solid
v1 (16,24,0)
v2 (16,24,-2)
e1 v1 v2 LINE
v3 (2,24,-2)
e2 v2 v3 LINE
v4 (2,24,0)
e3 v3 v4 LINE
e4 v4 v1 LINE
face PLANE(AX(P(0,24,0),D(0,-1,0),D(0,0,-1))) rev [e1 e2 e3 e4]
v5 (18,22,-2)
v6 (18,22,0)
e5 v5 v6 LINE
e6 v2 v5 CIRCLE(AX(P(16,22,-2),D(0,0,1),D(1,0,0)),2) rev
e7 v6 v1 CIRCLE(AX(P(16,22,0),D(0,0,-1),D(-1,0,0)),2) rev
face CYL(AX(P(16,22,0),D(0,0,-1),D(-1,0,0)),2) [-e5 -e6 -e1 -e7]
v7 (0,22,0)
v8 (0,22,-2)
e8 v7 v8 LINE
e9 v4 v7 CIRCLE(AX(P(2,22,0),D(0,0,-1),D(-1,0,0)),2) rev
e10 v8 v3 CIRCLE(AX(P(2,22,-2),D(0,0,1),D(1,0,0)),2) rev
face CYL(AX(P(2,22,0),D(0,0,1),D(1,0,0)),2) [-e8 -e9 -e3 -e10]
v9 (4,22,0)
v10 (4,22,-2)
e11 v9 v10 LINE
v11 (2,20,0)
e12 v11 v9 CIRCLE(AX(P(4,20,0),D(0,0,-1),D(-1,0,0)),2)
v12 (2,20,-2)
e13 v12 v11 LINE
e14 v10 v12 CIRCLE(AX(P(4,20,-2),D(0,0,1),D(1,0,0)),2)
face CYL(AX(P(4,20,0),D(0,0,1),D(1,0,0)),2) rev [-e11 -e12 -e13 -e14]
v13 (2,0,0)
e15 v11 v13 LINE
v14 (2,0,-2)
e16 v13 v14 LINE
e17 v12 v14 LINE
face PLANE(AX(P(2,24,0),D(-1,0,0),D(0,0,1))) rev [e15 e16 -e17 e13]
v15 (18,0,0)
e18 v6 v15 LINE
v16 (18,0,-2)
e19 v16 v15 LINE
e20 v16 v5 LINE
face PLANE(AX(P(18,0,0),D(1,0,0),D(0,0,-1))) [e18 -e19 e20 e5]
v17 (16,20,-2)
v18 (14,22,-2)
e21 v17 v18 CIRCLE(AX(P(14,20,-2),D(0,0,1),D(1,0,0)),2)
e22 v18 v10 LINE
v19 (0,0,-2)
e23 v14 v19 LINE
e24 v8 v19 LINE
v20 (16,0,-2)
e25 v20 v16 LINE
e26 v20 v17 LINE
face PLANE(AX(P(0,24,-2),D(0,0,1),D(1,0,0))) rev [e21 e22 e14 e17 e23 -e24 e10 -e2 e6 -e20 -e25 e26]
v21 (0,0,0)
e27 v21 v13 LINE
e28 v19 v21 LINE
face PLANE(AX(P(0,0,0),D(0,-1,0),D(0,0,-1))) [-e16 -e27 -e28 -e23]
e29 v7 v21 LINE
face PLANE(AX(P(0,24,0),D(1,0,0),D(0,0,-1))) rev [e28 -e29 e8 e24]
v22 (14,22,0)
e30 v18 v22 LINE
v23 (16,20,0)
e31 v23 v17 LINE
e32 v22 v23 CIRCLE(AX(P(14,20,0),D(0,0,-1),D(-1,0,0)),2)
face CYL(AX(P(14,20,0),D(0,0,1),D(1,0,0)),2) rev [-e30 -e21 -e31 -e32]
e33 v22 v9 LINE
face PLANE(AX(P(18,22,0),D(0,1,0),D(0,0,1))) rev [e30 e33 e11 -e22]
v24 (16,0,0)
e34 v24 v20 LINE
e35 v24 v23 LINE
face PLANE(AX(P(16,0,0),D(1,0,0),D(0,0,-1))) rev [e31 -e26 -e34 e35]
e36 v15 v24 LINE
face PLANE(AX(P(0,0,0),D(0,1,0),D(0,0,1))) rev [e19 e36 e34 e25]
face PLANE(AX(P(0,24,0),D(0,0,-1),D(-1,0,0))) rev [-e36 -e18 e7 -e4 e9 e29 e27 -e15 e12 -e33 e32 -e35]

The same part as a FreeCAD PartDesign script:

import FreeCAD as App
import Part
import Sketcher

V = App.Vector
Q = App.Units.Quantity


def edges_at(feature, points):
    """Names of the edges that pass closest to the given points."""
    edges = feature.Shape.Edges
    near = lambda p: min(range(len(edges)), key=lambda i: edges[i].distToShape(Part.Vertex(*p))[0])
    return sorted({f"Edge{near(p) + 1}" for p in points})


def add_polygon(sketch, points):
    """Adds a closed chain of lines whose ends are joined by coincident constraints."""
    first, n = sketch.GeometryCount, len(points)
    for a, b in zip(points, points[1:] + points[:1]):
        sketch.addGeometry(Part.LineSegment(App.Vector(*a, 0), App.Vector(*b, 0)), False)
    for i in range(n):
        sketch.addConstraint(Sketcher.Constraint("Coincident", first + i, 2, first + (i + 1) % n, 1))

doc = App.newDocument("Part")
body = doc.addObject("PartDesign::Body", "Body")

# Sketch on XZ plane
sketch1 = body.newObject("Sketcher::SketchObject", "Sketch")
sketch1.AttachmentSupport = (doc.getObject("XZ_Plane"), [""])
sketch1.MapMode = "FlatFace"
add_polygon(sketch1, [(0, -2), (0, 0), (2, 0), (2, -2)])  # lines 0-3
sketch1.addConstraint([
    Sketcher.Constraint("Vertical", 0),
    Sketcher.Constraint("Horizontal", 1),
    Sketcher.Constraint("Vertical", 2),
    Sketcher.Constraint("Horizontal", 3),
    Sketcher.Constraint("Coincident", 0, 2, -1, 1),
    Sketcher.Constraint("Equal", 3, 0),
    Sketcher.Constraint("DistanceX", 1, 1, 1, 2, Q("2 mm")),
])
pad1 = body.newObject("PartDesign::Pad", "Pad")
pad1.Profile = sketch1
pad1.Length = 24
pad1.Reversed = True

# Sketch on YZ plane
sketch2 = body.newObject("Sketcher::SketchObject", "Sketch001")
sketch2.AttachmentSupport = (doc.getObject("YZ_Plane"), [""])
sketch2.MapMode = "FlatFace"
sketch2.AttachmentOffset = App.Placement(V(0, 0, 2), App.Rotation())
add_polygon(sketch2, [(24, 0), (22, 0), (22, -2), (24, -2)])  # lines 0-3
sketch2.addConstraint([
    Sketcher.Constraint("Horizontal", 0),
    Sketcher.Constraint("Vertical", 1),
    Sketcher.Constraint("Horizontal", 2),
    Sketcher.Constraint("Vertical", 3),
    Sketcher.Constraint("PointOnObject", 0, 2, -1),
    Sketcher.Constraint("Equal", 2, 1),
    Sketcher.Constraint("DistanceX", 0, 2, 0, 1, Q("2 mm")),
    Sketcher.Constraint("DistanceX", -1, 1, 0, 2, Q("22 mm")),
])
pad2 = body.newObject("PartDesign::Pad", "Pad001")
pad2.Profile = sketch2
pad2.Length = 16

# Sketch on XZ plane
sketch3 = body.newObject("Sketcher::SketchObject", "Sketch002")
sketch3.AttachmentSupport = (doc.getObject("XZ_Plane"), [""])
sketch3.MapMode = "FlatFace"
sketch3.AttachmentOffset = App.Placement(V(0, 0, -22), App.Rotation())
add_polygon(sketch3, [(18, -2), (18, 0), (16, 0), (16, -2)])  # lines 0-3
sketch3.addConstraint([
    Sketcher.Constraint("Vertical", 0),
    Sketcher.Constraint("Horizontal", 1),
    Sketcher.Constraint("Vertical", 2),
    Sketcher.Constraint("Horizontal", 3),
    Sketcher.Constraint("PointOnObject", 0, 2, -1),
    Sketcher.Constraint("Equal", 3, 0),
    Sketcher.Constraint("DistanceX", 1, 2, 1, 1, Q("2 mm")),
    Sketcher.Constraint("DistanceX", -1, 1, 0, 2, Q("18 mm")),
])
pad3 = body.newObject("PartDesign::Pad", "Pad002")
pad3.Profile = sketch3
pad3.Length = 22
doc.recompute()

fillet = body.newObject("PartDesign::Fillet", "Fillet")
fillet.Base = (pad3, edges_at(pad3, [(2, 22, -1), (16, 22, -1)]))
fillet.Radius = 2
doc.recompute()

fillet2 = body.newObject("PartDesign::Fillet", "Fillet001")
fillet2.Base = (fillet, edges_at(fillet, [(18, 24, -1), (0, 24, -1)]))
fillet2.Radius = 2

doc.recompute()
